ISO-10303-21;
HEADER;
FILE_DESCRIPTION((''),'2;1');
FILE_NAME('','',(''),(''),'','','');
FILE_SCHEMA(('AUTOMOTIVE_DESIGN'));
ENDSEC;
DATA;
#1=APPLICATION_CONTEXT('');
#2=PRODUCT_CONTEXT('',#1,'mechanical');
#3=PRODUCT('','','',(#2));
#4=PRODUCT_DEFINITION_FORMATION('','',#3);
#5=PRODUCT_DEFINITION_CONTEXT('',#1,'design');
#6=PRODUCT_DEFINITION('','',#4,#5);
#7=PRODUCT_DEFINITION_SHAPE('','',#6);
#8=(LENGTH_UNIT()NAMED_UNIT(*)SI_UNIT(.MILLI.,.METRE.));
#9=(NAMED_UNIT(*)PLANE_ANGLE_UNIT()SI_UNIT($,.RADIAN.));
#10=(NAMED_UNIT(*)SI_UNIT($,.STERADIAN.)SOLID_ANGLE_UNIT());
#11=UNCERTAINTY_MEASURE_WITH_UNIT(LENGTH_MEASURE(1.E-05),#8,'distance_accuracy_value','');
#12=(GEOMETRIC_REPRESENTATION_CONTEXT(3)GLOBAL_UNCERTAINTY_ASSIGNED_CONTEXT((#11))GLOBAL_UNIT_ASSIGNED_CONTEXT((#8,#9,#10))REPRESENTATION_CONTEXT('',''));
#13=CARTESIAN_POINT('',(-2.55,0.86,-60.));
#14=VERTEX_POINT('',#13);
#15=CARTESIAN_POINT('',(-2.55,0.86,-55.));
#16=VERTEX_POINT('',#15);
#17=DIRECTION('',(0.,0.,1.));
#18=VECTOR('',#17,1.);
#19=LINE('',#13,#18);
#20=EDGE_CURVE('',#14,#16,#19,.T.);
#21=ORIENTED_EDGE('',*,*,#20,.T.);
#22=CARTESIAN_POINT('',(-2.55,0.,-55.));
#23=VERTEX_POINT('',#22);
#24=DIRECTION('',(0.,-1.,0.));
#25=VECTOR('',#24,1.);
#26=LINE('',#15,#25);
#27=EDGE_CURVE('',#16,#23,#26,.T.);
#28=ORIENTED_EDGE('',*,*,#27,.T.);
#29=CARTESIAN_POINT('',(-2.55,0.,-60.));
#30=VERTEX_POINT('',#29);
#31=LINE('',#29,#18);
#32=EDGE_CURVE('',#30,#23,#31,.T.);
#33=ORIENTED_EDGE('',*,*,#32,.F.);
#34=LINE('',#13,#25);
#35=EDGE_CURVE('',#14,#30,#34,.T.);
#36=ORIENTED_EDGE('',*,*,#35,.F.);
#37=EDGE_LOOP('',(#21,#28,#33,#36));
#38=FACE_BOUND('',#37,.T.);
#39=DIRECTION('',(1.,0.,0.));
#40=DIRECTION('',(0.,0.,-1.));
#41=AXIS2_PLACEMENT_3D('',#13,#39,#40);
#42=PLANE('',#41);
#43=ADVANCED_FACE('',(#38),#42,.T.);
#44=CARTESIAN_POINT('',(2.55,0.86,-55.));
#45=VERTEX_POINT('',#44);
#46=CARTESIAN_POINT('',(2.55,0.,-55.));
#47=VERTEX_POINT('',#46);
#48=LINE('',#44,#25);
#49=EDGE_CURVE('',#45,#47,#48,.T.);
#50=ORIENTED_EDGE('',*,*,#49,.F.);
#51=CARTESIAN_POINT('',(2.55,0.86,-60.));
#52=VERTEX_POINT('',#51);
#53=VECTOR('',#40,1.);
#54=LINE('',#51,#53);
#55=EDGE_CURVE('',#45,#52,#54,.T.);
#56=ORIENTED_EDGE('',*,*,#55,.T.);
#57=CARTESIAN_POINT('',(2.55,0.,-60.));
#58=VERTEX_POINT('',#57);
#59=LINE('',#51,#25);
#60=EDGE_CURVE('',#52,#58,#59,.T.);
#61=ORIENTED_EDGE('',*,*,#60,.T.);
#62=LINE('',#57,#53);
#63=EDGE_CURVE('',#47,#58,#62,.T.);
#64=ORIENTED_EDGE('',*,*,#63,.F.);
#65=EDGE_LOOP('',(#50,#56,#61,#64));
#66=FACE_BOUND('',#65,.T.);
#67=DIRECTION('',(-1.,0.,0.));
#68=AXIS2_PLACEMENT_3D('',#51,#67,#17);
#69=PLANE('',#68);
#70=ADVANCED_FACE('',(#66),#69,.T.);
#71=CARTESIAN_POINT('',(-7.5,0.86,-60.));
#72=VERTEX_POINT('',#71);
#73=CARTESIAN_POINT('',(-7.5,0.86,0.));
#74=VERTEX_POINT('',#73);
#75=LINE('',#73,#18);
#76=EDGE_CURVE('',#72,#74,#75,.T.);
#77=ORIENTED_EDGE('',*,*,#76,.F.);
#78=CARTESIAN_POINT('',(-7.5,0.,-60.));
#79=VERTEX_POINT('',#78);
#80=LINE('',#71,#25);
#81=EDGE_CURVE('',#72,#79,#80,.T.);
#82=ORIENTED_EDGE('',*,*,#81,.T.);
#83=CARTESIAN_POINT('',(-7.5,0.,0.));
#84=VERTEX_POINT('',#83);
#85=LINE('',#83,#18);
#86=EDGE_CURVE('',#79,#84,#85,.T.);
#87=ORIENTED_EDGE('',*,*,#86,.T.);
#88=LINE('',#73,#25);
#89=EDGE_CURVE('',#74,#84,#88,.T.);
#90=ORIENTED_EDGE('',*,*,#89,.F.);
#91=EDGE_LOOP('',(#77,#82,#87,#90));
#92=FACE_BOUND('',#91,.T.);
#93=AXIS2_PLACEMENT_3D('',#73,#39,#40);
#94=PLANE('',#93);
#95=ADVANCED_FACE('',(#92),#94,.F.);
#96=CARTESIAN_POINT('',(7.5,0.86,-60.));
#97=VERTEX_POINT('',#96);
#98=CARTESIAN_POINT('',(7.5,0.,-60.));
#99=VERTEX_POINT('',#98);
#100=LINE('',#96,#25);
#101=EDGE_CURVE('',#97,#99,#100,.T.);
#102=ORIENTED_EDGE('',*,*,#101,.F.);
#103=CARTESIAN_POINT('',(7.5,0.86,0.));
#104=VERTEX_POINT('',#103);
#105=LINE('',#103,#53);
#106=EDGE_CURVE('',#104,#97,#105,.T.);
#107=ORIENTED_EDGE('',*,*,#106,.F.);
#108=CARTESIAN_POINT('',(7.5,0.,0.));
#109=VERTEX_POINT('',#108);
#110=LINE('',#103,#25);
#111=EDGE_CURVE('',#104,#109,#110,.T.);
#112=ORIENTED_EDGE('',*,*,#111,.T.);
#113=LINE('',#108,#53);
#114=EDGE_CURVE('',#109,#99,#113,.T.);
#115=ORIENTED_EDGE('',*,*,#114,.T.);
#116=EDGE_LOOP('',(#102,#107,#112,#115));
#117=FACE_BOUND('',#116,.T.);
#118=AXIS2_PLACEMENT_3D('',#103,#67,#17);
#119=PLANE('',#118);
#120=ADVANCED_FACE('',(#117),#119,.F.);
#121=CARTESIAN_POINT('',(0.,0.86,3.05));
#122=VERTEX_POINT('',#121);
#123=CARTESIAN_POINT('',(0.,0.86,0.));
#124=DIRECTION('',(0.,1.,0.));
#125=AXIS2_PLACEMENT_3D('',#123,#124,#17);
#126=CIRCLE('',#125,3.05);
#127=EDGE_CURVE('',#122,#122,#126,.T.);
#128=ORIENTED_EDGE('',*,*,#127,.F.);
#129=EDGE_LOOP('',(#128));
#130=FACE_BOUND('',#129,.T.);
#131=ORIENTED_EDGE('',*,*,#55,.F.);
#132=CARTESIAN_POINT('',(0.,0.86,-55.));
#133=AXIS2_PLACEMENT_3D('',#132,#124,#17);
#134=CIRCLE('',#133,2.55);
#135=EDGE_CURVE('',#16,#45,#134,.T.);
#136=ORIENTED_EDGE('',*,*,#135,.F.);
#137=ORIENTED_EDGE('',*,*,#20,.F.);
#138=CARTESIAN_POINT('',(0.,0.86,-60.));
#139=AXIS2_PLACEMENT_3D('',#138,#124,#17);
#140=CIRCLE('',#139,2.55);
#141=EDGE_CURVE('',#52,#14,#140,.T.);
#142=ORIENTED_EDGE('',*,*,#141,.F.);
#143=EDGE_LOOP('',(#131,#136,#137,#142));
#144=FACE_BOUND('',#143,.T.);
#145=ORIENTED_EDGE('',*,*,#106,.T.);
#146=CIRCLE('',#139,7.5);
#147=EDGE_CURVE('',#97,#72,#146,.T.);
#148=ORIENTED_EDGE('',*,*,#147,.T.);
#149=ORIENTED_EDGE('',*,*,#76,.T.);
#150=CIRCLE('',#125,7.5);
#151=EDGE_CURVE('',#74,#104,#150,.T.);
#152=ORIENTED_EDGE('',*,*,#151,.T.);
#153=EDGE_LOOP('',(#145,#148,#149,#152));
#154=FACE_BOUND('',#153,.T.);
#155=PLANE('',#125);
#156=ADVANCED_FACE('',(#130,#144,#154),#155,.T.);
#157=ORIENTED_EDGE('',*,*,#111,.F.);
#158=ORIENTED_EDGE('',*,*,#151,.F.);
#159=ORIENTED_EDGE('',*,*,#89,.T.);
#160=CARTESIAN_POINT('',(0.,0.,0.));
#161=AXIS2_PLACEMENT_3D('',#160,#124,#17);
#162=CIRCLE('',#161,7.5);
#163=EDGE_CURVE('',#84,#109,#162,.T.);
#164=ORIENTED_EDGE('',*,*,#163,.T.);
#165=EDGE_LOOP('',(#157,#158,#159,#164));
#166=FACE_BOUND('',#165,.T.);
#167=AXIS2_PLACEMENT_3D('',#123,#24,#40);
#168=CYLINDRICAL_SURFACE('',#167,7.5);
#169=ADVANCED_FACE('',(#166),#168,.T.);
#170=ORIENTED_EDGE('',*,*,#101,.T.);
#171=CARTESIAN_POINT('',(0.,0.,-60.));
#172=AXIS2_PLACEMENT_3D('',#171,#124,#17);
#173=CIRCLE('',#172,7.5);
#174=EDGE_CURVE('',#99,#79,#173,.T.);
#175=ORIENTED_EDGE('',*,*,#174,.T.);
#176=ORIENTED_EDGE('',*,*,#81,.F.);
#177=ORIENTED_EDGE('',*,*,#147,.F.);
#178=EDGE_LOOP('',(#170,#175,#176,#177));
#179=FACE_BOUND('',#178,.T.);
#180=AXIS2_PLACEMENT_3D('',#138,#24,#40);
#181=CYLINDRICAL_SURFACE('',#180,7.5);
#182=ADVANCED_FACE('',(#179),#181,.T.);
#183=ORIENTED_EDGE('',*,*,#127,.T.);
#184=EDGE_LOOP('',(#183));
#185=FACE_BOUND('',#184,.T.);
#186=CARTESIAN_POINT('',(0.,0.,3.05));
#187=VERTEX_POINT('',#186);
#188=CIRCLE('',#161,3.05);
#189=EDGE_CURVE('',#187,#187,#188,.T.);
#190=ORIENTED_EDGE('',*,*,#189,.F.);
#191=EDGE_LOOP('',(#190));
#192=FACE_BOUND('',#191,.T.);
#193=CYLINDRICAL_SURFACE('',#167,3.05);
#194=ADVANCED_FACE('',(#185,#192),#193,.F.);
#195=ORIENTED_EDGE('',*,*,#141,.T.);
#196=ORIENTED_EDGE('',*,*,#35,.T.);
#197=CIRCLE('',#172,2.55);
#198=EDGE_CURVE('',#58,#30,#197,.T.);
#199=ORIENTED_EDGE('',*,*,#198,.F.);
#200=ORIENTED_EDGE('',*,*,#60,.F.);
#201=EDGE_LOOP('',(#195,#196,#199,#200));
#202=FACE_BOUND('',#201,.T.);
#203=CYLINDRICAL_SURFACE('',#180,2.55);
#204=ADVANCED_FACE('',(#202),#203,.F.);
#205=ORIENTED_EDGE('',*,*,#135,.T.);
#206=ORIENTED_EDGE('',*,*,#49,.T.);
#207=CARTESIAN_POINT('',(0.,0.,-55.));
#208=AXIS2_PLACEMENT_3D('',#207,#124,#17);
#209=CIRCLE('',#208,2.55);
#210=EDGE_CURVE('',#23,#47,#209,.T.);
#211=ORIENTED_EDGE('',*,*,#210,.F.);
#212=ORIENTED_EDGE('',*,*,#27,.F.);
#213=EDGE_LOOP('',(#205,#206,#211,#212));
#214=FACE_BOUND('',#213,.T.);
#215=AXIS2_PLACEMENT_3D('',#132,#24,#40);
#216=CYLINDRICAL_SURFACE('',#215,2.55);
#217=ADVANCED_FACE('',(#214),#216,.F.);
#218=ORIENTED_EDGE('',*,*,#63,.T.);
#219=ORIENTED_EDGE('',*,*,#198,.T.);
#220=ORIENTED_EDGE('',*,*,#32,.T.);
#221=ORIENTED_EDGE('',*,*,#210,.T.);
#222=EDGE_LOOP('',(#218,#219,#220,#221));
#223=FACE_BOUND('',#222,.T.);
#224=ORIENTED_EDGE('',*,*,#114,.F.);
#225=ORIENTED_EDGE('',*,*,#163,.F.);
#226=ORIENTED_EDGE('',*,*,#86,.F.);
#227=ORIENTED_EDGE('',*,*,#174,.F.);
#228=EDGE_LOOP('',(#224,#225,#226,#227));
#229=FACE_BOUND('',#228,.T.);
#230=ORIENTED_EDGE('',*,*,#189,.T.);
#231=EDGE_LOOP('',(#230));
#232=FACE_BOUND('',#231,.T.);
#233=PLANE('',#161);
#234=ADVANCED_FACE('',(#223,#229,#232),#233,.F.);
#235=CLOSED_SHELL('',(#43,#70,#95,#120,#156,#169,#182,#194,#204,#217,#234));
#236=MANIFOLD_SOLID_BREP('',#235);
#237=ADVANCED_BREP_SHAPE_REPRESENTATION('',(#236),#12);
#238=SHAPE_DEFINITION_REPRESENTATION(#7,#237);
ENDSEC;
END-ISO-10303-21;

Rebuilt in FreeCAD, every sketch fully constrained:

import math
import FreeCAD as App
import Part
import Sketcher

doc = App.newDocument("Part")
params = doc.addObject("Spreadsheet::Sheet", "Params")
for row, (alias, value) in enumerate([
    ("sketch1_diameter", "6.1 mm"),
    ("sketch1_radius", "7.5 mm"),
    ("sketch1_height", "60 mm"),
    ("sketch1_height2", "5 mm"),
    ("sketch1_radius2", "2.55 mm"),
    ("pad1_length", "0.86 mm"),
], start=1):
    params.set(f"A{row}", alias)
    params.set(f"B{row}", "=" + value)
    params.setAlias(f"B{row}", alias)

body = doc.addObject("PartDesign::Body", "Body")

# Sketch on XZ plane
sketch1 = body.newObject("Sketcher::SketchObject", "Sketch")
sketch1.AttachmentSupport = (doc.getObject("XZ_Plane"), [""])
sketch1.MapMode = "FlatFace"
sketch1.addGeometry([
    Part.LineSegment(App.Vector(-7.5, -60, 0), App.Vector(-7.5, 0, 0)),  # 0
    Part.ArcOfCircle(Part.Circle(App.Vector(0, 0, 0), App.Vector(0, 0, 1), 7.5), math.radians(0), math.radians(180)),  # 1
    Part.LineSegment(App.Vector(7.5, 0, 0), App.Vector(7.5, -60, 0)),  # 2
    Part.ArcOfCircle(Part.Circle(App.Vector(0, -60, 0), App.Vector(0, 0, 1), 7.5), math.radians(180), math.radians(360)),  # 3
    Part.Circle(App.Vector(0, 0, 0), App.Vector(0, 0, 1), 3),  # 4
    Part.LineSegment(App.Vector(2.5, -60, 0), App.Vector(2.5, -55, 0)),  # 5
    Part.ArcOfCircle(Part.Circle(App.Vector(0, -55, 0), App.Vector(0, 0, 1), 2.5), math.radians(0), math.radians(180)),  # 6
    Part.LineSegment(App.Vector(-2.5, -55, 0), App.Vector(-2.5, -60, 0)),  # 7
    Part.ArcOfCircle(Part.Circle(App.Vector(0, -60, 0), App.Vector(0, 0, 1), 2.5), math.radians(180), math.radians(360)),  # 8
], False)
sketch1.addConstraint([
    Sketcher.Constraint("Tangent", 0, 2, 1, 2),
    Sketcher.Constraint("Tangent", 1, 1, 2, 1),
    Sketcher.Constraint("Tangent", 2, 2, 3, 2),
    Sketcher.Constraint("Tangent", 3, 1, 0, 1),
    Sketcher.Constraint("Tangent", 5, 2, 6, 1),
    Sketcher.Constraint("Tangent", 6, 2, 7, 1),
    Sketcher.Constraint("Tangent", 7, 2, 8, 1),
    Sketcher.Constraint("Tangent", 8, 2, 5, 1),
    Sketcher.Constraint("Vertical", 0),
    Sketcher.Constraint("Vertical", 2),
    Sketcher.Constraint("Vertical", 5),
    Sketcher.Constraint("Vertical", 7),
    Sketcher.Constraint("Coincident", 1, 3, -1, 1),
    Sketcher.Constraint("Coincident", 4, 3, -1, 1),
    Sketcher.Constraint("Coincident", 8, 3, 3, 3),
    Sketcher.Constraint("Diameter", 4, 6.1),
    Sketcher.Constraint("Radius", 1, 7.5),
    Sketcher.Constraint("DistanceY", 0, 1, 0, 2, 60.0),
    Sketcher.Constraint("DistanceY", 5, 1, 5, 2, 5.0),
    Sketcher.Constraint("Radius", 6, 2.55),
])
sketch1.setExpression("Constraints[15]", "Params.sketch1_diameter")
sketch1.setExpression("Constraints[16]", "Params.sketch1_radius")
sketch1.setExpression("Constraints[17]", "Params.sketch1_height")
sketch1.setExpression("Constraints[18]", "Params.sketch1_height2")
sketch1.setExpression("Constraints[19]", "Params.sketch1_radius2")
pad1 = body.newObject("PartDesign::Pad", "Pad")
pad1.Profile = sketch1
pad1.setExpression("Length", "Params.pad1_length")
pad1.Reversed = True

doc.recompute()
